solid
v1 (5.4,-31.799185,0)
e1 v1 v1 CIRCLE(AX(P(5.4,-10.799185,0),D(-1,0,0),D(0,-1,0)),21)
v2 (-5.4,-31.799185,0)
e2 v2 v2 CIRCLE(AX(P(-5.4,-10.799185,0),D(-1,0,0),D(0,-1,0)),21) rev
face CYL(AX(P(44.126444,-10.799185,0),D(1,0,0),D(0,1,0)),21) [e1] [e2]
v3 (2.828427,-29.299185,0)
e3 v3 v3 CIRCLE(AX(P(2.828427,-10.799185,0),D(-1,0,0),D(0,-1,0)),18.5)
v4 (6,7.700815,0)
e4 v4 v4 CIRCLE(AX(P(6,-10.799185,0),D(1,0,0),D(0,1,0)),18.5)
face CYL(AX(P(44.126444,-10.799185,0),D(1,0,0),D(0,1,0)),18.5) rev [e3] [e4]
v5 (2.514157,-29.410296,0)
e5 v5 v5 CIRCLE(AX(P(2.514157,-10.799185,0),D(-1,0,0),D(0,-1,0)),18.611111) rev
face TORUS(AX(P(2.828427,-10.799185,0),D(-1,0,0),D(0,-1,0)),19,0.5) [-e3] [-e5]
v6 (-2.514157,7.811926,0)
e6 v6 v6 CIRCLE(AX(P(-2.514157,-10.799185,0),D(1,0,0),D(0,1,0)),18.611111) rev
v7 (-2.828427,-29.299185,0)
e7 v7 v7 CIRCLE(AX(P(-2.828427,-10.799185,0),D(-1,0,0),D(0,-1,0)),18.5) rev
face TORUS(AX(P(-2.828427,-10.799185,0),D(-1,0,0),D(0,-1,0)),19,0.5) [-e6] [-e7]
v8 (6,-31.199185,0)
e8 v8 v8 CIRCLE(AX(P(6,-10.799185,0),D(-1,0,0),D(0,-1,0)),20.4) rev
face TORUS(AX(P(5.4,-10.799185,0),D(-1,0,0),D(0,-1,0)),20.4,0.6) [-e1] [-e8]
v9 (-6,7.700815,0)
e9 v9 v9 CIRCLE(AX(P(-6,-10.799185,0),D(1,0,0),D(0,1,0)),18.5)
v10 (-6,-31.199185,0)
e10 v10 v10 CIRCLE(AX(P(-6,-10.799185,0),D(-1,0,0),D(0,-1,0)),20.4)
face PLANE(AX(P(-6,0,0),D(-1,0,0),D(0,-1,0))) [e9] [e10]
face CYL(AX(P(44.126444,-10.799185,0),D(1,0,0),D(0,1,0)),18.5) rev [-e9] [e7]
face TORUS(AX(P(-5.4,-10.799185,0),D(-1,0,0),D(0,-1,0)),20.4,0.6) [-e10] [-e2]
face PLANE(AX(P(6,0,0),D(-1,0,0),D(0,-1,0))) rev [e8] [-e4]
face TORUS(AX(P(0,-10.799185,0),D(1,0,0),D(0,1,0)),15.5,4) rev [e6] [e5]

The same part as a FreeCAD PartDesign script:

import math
import FreeCAD as App
import Part
import Sketcher

V = App.Vector
Q = App.Units.Quantity


def edges_at(feature, points):
    """Names of the edges that pass closest to the given points."""
    edges = feature.Shape.Edges
    near = lambda p: min(range(len(edges)), key=lambda i: edges[i].distToShape(Part.Vertex(*p))[0])
    return sorted({f"Edge{near(p) + 1}" for p in points})

doc = App.newDocument("Part")
body = doc.addObject("PartDesign::Body", "Body")

sketch1 = doc.addObject("Sketcher::SketchObject", "Sketch")
body.addObject(sketch1)
sketch1.AttachmentSupport = (doc.XY_Plane, [""])
sketch1.MapMode = "FlatFace"
sketch1.addGeometry([
    Part.LineSegment(V(6, 10.200815, 0), V(-6, 10.200815, 0)),
    Part.LineSegment(V(-6, 10.200815, 0), V(-6, 7.700815, 0)),
    Part.LineSegment(V(-6, 7.700815, 0), V(-2.645751, 7.700815, 0)),
    Part.ArcOfCircle(Part.Circle(V(0, 4.700815, 0), V(0, 0, 1), 4), math.radians(48.590378), math.radians(131.409622)),
    Part.LineSegment(V(2.645751, 7.700815, 0), V(6, 7.700815, 0)),
    Part.LineSegment(V(6, 7.700815, 0), V(6, 10.200815, 0)),
], False)
sketch1.addGeometry(Part.LineSegment(V(6, -10.799185, 0), V(-6, -10.799185, 0)), True)
sketch1.addConstraint([
    Sketcher.Constraint("Coincident", 0, 2, 1, 1),
    Sketcher.Constraint("Coincident", 1, 2, 2, 1),
    Sketcher.Constraint("Coincident", 2, 2, 3, 2),
    Sketcher.Constraint("Coincident", 3, 1, 4, 1),
    Sketcher.Constraint("Coincident", 4, 2, 5, 1),
    Sketcher.Constraint("Coincident", 5, 2, 0, 1),
    Sketcher.Constraint("Horizontal", 0),
    Sketcher.Constraint("Vertical", 1),
    Sketcher.Constraint("Horizontal", 2),
    Sketcher.Constraint("Horizontal", 4),
    Sketcher.Constraint("Vertical", 5),
    Sketcher.Constraint("Horizontal", 6),
    Sketcher.Constraint("Symmetric", 2, 2, 3, 1, -2),
    Sketcher.Constraint("Vertical", 5, 2, 6, 1),
    Sketcher.Constraint("Vertical", 1, 2, 6, 2),
    Sketcher.Constraint("Equal", 2, 4),
    Sketcher.Constraint("Radius", 3, Q("4 mm")),
    Sketcher.Constraint("DistanceX", 0, 2, 0, 1, Q("12 mm")),
    Sketcher.Constraint("DistanceY", 1, 2, 1, 1, Q("2.5 mm")),
    Sketcher.Constraint("DistanceY", 3, 3, 1, 2, Q("3 mm")),
    Sketcher.Constraint("DistanceY", 6, 1, 5, 2, Q("21 mm")),
    Sketcher.Constraint("DistanceY", -1, 1, 3, 3, Q("4.700815 mm")),
])
revolution = doc.addObject("PartDesign::Revolution", "Revolution")
body.addObject(revolution)
revolution.Profile = sketch1
revolution.ReferenceAxis = (sketch1, ["Axis0"])
revolution.Angle = 360
doc.recompute()

fillet = doc.addObject("PartDesign::Fillet", "Fillet")
body.addObject(fillet)
fillet.Base = (revolution, edges_at(revolution, [(-6, -31.799, 0), (6, -31.799, 0)]))
fillet.Radius = 0.6
doc.recompute()

fillet2 = doc.addObject("PartDesign::Fillet", "Fillet001")
body.addObject(fillet2)
fillet2.Base = (fillet, edges_at(fillet, [(-2.646, -29.299, 0), (2.646, -29.299, 0)]))
fillet2.Radius = 0.5

doc.recompute()
